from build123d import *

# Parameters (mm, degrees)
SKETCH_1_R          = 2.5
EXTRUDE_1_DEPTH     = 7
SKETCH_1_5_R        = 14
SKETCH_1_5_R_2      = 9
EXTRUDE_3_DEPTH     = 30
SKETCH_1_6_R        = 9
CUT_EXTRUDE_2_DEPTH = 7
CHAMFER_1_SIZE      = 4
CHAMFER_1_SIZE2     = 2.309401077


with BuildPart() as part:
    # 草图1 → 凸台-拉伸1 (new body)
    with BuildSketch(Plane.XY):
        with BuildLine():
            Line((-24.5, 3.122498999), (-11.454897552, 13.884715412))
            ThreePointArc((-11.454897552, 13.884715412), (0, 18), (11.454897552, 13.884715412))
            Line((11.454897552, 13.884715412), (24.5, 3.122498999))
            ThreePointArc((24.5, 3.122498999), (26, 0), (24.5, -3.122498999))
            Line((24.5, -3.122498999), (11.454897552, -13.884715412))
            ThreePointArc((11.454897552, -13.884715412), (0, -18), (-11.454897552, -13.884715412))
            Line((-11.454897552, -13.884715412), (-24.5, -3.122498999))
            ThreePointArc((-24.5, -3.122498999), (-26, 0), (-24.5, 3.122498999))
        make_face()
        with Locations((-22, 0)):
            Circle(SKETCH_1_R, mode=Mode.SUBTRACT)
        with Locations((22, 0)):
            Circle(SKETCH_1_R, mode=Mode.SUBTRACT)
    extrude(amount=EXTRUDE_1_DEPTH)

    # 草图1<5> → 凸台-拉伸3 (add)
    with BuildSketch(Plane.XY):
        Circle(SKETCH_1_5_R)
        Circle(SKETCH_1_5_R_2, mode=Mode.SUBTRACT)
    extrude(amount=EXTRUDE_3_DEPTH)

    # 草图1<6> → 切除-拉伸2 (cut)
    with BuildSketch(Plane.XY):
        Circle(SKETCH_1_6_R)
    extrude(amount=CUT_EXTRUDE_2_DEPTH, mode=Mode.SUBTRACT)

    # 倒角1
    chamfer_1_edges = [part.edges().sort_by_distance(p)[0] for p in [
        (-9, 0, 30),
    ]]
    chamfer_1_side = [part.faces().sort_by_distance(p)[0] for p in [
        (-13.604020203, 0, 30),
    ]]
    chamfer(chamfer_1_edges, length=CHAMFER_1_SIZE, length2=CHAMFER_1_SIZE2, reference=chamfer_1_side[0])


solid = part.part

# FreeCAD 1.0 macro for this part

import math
import FreeCAD as App
import Part
import Sketcher

V = App.Vector


def edges_at(feature, points):
    """Names of the edges that pass closest to the given points."""
    edges = feature.Shape.Edges
    near = lambda p: min(range(len(edges)), key=lambda i: edges[i].distToShape(Part.Vertex(*p))[0])
    return sorted({f"Edge{near(p) + 1}" for p in points})

doc = App.newDocument("Part")
body = doc.addObject("PartDesign::Body", "Body")

sketch1 = body.newObject("Sketcher::SketchObject", "Sketch")
sketch1.AttachmentSupport = (doc.getObject("XY_Plane"), [""])
sketch1.MapMode = "FlatFace"
sketch1.addGeometry([
    Part.LineSegment(V(-11.454898, 13.884715, 0), V(-24.5, 3.122499, 0)),
    Part.ArcOfCircle(Part.Circle(V(-22, 0, 0), V(0, 0, 1), 4), math.radians(128.682187), math.radians(231.317813)),
    Part.LineSegment(V(-24.5, -3.122499, 0), V(-11.454898, -13.884715, 0)),
    Part.ArcOfCircle(Part.Circle(V(0, 0, 0), V(0, 0, 1), 18), math.radians(-129.522649), math.radians(-50.477351)),
    Part.LineSegment(V(11.454898, -13.884715, 0), V(24.5, -3.122499, 0)),
    Part.ArcOfCircle(Part.Circle(V(22, 0, 0), V(0, 0, 1), 4), math.radians(-51.317813), math.radians(51.317813)),
    Part.LineSegment(V(24.5, 3.122499, 0), V(11.454898, 13.884715, 0)),
    Part.ArcOfCircle(Part.Circle(V(0, 0, 0), V(0, 0, 1), 18), math.radians(50.477351), math.radians(129.522649)),
    Part.Circle(V(22, 0, 0), V(0, 0, 1), 2.5),
    Part.Circle(V(-22, 0, 0), V(0, 0, 1), 2.5),
], False)
sketch1.addConstraint([
    Sketcher.Constraint("Coincident", 0, 2, 1, 1),
    Sketcher.Constraint("Coincident", 1, 2, 2, 1),
    Sketcher.Constraint("Tangent", 2, 2, 3, 1),
    Sketcher.Constraint("Tangent", 3, 2, 4, 1),
    Sketcher.Constraint("Coincident", 4, 2, 5, 1),
    Sketcher.Constraint("Coincident", 5, 2, 6, 1),
    Sketcher.Constraint("Tangent", 6, 2, 7, 1),
    Sketcher.Constraint("Tangent", 7, 2, 0, 1),
    Sketcher.Constraint("Coincident", 3, 3, -1, 1),
    Sketcher.Constraint("Coincident", 7, 3, -1, 1),
    Sketcher.Constraint("Coincident", 8, 3, 5, 3),
    Sketcher.Constraint("Coincident", 9, 3, 1, 3),
    Sketcher.Constraint("Equal", 1, 5),
    Sketcher.Constraint("Equal", 3, 7),
    Sketcher.Constraint("Equal", 8, 9),
    Sketcher.Constraint("Symmetric", 1, 3, 5, 3, -1, 1),
    Sketcher.Constraint("Symmetric", 1, 2, 4, 2, -2),
    Sketcher.Constraint("Parallel", 0, 4),
    Sketcher.Constraint("Parallel", 2, 6),
    Sketcher.Constraint("Diameter", 8, 5.0),
    Sketcher.Constraint("Radius", 1, 4.0),
    Sketcher.Constraint("Radius", 3, 18.0),
    Sketcher.Constraint("DistanceX", 1, 3, -1, 1, 22.0),
    Sketcher.Constraint("DistanceX", 0, 2, -1, 1, 24.5),
])
pad1 = body.newObject("PartDesign::Pad", "Pad")
pad1.Profile = sketch1
pad1.Length = 7

sketch2 = body.newObject("Sketcher::SketchObject", "Sketch001")
sketch2.AttachmentSupport = (doc.getObject("XY_Plane"), [""])
sketch2.MapMode = "FlatFace"
sketch2.addGeometry([
    Part.Circle(V(0, 0, 0), V(0, 0, 1), 14),
    Part.Circle(V(0, 0, 0), V(0, 0, 1), 9),
], False)
sketch2.addConstraint([
    Sketcher.Constraint("Coincident", 0, 3, -1, 1),
    Sketcher.Constraint("Coincident", 1, 3, -1, 1),
    Sketcher.Constraint("Diameter", 0, 28.0),
    Sketcher.Constraint("Diameter", 1, 18.0),
])
pad2 = body.newObject("PartDesign::Pad", "Pad001")
pad2.Profile = sketch2
pad2.Length = 30

sketch3 = body.newObject("Sketcher::SketchObject", "Sketch002")
sketch3.AttachmentSupport = (doc.getObject("XY_Plane"), [""])
sketch3.MapMode = "FlatFace"
sketch3.addGeometry(Part.Circle(V(0, 0, 0), V(0, 0, 1), 9), False)
sketch3.addConstraint([
    Sketcher.Constraint("Coincident", 0, 3, -1, 1),
    Sketcher.Constraint("Diameter", 0, 18.0),
])
pocket1 = body.newObject("PartDesign::Pocket", "Pocket")
pocket1.Profile = sketch3
pocket1.Length = 7
pocket1.Reversed = True
doc.recompute()

chamfer = body.newObject("PartDesign::Chamfer", "Chamfer")
chamfer.Base = (pocket1, edges_at(pocket1, [(-9, 0, 30)]))
chamfer.ChamferType = "Two distances"
chamfer.Size = 4
chamfer.Size2 = 2.309401

doc.recompute()
